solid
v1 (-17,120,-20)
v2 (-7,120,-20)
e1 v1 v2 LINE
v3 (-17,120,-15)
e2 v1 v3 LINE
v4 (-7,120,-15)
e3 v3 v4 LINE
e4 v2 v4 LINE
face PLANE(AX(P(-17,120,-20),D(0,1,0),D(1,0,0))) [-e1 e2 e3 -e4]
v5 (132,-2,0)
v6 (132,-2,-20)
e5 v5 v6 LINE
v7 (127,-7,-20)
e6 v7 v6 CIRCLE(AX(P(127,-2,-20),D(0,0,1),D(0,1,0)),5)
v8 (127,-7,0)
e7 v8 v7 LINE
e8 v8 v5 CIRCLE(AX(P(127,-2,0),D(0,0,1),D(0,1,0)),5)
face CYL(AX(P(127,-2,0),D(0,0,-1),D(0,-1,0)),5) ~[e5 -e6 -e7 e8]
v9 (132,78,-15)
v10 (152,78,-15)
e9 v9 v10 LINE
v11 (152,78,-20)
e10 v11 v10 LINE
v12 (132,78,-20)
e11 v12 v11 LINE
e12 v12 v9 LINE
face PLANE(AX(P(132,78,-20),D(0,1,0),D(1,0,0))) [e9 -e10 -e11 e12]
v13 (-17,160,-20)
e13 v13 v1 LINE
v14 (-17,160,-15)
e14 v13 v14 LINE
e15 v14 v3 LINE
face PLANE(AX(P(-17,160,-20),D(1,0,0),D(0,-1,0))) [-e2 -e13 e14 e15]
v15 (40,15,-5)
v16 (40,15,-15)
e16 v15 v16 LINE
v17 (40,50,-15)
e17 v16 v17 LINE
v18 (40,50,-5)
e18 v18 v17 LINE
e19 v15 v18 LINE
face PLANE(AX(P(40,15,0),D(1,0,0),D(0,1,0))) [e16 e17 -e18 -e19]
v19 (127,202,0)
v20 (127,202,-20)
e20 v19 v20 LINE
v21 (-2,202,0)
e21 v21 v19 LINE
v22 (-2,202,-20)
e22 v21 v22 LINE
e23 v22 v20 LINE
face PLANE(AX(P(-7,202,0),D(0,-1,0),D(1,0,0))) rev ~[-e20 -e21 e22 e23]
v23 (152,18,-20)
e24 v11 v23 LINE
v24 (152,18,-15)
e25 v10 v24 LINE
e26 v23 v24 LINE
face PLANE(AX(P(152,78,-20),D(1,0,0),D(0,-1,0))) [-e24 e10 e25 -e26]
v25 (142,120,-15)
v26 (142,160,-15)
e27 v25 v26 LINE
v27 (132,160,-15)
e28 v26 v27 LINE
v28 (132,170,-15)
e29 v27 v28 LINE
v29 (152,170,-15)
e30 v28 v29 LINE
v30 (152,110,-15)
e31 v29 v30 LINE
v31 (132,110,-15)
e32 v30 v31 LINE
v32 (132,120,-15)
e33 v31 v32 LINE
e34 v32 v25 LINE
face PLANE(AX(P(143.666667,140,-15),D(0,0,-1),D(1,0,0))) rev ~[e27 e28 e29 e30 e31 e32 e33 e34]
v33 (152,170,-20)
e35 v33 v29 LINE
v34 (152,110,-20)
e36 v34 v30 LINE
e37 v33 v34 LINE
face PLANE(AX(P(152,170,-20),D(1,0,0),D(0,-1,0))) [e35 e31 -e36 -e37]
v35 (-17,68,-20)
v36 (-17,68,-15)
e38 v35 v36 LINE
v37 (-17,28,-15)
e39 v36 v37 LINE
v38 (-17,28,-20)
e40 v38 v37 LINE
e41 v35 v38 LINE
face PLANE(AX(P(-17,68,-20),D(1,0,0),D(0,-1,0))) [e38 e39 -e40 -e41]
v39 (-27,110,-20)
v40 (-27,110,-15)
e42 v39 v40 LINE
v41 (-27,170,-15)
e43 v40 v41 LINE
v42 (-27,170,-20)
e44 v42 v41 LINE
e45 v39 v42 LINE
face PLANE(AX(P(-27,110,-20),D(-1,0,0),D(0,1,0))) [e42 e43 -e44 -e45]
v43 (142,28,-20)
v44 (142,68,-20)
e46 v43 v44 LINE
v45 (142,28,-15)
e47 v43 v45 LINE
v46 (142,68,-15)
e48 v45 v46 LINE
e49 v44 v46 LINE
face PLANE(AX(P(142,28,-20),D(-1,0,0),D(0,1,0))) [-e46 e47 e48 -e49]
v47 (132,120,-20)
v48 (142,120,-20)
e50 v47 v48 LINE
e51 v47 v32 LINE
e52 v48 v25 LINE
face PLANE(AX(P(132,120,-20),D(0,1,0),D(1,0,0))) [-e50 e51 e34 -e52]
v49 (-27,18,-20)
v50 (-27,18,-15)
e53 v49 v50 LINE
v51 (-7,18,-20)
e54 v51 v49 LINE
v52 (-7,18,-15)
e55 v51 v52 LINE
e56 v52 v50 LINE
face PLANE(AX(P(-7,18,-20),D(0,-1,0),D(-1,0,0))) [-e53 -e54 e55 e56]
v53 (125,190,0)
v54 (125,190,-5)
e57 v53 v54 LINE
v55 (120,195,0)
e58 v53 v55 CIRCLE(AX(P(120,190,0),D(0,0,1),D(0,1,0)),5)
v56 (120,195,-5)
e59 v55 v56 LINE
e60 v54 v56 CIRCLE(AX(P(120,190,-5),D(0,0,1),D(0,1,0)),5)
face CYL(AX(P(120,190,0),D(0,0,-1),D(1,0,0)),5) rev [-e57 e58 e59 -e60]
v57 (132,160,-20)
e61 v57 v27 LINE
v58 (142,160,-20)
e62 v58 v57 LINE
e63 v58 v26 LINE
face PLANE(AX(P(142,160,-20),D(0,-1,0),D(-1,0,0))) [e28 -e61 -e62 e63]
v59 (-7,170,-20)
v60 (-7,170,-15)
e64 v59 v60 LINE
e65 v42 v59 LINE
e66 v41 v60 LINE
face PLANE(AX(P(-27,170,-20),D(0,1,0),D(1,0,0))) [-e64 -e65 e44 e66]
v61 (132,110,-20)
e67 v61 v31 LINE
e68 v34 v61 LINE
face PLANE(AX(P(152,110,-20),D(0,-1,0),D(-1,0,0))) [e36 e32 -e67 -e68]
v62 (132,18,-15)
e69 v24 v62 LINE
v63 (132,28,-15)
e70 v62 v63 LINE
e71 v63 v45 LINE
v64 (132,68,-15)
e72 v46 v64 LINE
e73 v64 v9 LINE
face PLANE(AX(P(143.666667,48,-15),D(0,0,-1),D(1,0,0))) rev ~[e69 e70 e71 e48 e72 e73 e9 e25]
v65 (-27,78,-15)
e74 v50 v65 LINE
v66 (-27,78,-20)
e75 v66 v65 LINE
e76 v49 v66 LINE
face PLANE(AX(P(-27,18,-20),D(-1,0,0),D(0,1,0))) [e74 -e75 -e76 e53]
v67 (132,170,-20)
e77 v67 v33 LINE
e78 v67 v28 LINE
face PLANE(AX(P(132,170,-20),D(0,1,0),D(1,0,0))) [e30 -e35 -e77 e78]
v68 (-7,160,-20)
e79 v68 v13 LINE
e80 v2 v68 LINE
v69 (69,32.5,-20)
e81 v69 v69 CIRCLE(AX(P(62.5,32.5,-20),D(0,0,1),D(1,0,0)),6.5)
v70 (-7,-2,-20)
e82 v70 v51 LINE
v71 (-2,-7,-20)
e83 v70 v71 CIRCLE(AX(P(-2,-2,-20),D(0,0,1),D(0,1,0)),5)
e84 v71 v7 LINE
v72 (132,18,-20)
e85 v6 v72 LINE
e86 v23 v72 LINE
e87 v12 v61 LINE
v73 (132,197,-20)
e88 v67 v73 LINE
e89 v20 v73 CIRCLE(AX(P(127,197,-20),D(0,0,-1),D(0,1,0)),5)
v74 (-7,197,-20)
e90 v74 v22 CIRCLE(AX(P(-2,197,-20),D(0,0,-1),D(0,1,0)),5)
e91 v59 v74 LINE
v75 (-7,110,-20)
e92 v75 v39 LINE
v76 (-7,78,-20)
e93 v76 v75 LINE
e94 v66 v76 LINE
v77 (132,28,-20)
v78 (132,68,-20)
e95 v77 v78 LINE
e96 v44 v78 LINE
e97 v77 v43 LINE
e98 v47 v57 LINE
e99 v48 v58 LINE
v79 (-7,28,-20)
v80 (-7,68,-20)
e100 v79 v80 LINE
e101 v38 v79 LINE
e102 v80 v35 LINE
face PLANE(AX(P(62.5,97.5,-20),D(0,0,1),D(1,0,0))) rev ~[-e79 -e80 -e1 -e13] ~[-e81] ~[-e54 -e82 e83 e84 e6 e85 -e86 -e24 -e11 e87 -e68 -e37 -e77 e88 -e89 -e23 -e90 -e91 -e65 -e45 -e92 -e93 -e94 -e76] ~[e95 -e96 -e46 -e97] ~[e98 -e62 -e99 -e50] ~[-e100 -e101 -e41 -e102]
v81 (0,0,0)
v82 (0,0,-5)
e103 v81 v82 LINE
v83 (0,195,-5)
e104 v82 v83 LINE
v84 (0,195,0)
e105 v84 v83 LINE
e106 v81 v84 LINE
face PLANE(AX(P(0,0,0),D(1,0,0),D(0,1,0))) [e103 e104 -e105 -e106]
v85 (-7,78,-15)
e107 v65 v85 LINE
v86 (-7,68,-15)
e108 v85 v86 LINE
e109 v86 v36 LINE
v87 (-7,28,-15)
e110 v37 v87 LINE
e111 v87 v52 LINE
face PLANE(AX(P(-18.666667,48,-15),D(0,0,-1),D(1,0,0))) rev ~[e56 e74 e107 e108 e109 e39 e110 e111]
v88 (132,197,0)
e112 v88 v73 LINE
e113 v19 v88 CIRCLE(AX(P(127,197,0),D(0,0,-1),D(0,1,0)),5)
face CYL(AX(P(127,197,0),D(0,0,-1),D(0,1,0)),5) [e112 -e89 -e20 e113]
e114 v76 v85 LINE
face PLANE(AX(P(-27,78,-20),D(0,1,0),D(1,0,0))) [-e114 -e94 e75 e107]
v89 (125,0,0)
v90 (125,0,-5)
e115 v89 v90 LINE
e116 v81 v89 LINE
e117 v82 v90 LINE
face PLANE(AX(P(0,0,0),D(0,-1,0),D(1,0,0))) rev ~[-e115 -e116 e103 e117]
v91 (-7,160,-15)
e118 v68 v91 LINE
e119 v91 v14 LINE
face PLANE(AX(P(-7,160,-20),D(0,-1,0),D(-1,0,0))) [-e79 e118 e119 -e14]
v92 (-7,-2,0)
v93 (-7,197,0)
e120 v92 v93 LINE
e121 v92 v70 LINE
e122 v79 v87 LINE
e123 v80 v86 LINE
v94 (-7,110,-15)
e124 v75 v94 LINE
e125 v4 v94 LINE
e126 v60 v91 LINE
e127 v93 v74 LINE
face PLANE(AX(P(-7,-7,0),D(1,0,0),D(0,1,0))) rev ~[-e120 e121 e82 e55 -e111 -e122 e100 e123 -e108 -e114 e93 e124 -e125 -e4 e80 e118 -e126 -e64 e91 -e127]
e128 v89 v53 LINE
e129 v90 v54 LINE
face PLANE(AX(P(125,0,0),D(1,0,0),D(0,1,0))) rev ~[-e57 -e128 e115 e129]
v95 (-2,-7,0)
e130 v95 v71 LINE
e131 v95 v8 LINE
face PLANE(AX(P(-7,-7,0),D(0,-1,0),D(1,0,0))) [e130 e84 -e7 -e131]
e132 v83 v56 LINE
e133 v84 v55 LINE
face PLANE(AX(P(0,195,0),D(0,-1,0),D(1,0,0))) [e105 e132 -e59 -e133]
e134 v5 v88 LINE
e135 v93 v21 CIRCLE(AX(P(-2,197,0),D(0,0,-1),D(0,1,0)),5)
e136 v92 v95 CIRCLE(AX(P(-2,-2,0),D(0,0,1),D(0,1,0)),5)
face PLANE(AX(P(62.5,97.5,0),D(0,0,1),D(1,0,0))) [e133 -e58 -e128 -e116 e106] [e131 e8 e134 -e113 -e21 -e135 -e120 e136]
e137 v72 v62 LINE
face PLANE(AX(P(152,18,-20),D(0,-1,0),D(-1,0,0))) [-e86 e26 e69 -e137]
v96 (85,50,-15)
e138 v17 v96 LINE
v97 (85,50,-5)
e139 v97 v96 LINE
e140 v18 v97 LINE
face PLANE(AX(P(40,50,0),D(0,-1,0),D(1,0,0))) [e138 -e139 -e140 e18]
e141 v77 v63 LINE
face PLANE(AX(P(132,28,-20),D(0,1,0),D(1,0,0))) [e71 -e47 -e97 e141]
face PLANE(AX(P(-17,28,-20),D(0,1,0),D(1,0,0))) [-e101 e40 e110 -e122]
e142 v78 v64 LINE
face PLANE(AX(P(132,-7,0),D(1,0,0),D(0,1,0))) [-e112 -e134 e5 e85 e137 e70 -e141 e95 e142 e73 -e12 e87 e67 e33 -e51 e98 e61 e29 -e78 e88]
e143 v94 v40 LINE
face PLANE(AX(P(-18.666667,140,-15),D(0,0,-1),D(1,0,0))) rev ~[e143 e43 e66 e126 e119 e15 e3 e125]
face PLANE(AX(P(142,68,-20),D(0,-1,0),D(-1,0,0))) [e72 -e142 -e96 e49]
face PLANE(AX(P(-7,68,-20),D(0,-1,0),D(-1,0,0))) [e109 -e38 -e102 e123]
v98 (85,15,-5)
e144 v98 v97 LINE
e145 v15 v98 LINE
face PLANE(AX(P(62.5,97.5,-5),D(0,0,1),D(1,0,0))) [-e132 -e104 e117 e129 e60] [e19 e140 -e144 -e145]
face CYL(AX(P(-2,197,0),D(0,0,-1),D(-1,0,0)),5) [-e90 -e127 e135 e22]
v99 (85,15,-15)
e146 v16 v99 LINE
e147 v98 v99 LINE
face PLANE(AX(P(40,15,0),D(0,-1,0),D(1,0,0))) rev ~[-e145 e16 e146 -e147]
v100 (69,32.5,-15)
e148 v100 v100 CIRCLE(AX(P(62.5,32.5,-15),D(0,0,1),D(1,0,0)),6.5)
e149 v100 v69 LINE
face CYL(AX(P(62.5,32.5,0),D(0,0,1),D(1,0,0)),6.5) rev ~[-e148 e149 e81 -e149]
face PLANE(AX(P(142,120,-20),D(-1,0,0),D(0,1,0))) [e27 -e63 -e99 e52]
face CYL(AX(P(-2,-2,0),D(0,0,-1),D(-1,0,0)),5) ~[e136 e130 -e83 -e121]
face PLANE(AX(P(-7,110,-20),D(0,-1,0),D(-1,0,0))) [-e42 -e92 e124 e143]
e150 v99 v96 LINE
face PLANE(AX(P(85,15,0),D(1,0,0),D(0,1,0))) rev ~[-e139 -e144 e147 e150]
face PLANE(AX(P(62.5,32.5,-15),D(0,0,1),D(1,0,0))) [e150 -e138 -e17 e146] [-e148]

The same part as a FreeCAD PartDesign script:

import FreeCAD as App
import Part
import Sketcher
Q = App.Units.Quantity


def edges_at(feature, points):
    """Names of the edges that pass closest to the given points."""
    edges = feature.Shape.Edges
    near = lambda p: min(range(len(edges)), key=lambda i: edges[i].distToShape(Part.Vertex(*p))[0])
    return sorted({f"Edge{near(p) + 1}" for p in points})


def add_polygon(sketch, points):
    """Adds a closed chain of lines whose ends are joined by coincident constraints."""
    first, n = sketch.GeometryCount, len(points)
    for a, b in zip(points, points[1:] + points[:1]):
        sketch.addGeometry(Part.LineSegment(App.Vector(*a, 0), App.Vector(*b, 0)), False)
    for i in range(n):
        sketch.addConstraint(Sketcher.Constraint("Coincident", first + i, 2, first + (i + 1) % n, 1))

doc = App.newDocument("Part")
body = doc.addObject("PartDesign::Body", "Body")

# Sketch on XY plane
sketch1 = doc.addObject("Sketcher::SketchObject", "Sketch")
body.addObject(sketch1)
sketch1.AttachmentSupport = (doc.XY_Plane, [""])
sketch1.MapMode = "FlatFace"
add_polygon(sketch1, [(-7, 202), (-7, -7), (132, -7), (132, 202)])  # lines 0-3
sketch1.addConstraint(Sketcher.Constraint("Vertical", 0))
sketch1.addConstraint(Sketcher.Constraint("Horizontal", 1))
sketch1.addConstraint(Sketcher.Constraint("Vertical", 2))
sketch1.addConstraint(Sketcher.Constraint("Horizontal", 3))
sketch1.addConstraint(Sketcher.Constraint("DistanceX", 1, 1, 1, 2, Q("139 mm")))
sketch1.addConstraint(Sketcher.Constraint("DistanceY", 0, 2, 0, 1, Q("209 mm")))
sketch1.addConstraint(Sketcher.Constraint("DistanceX", 0, 2, -1, 1, Q("7 mm")))
sketch1.addConstraint(Sketcher.Constraint("DistanceY", 0, 2, -1, 1, Q("7 mm")))
pad1 = doc.addObject("PartDesign::Pad", "Pad")
body.addObject(pad1)
pad1.Profile = sketch1
pad1.Length = 20
pad1.Reversed = True

# Sketch on XY plane
sketch2 = doc.addObject("Sketcher::SketchObject", "Sketch001")
body.addObject(sketch2)
sketch2.AttachmentSupport = (doc.XY_Plane, [""])
sketch2.MapMode = "FlatFace"
add_polygon(sketch2, [(0, 195), (0, 0), (125, 0), (125, 195)])  # lines 0-3
sketch2.addConstraint(Sketcher.Constraint("Vertical", 0))
sketch2.addConstraint(Sketcher.Constraint("Horizontal", 1))
sketch2.addConstraint(Sketcher.Constraint("Vertical", 2))
sketch2.addConstraint(Sketcher.Constraint("Horizontal", 3))
sketch2.addConstraint(Sketcher.Constraint("Coincident", 0, 2, -1, 1))
sketch2.addConstraint(Sketcher.Constraint("DistanceX", 1, 1, 1, 2, Q("125 mm")))
sketch2.addConstraint(Sketcher.Constraint("DistanceY", 0, 2, 0, 1, Q("195 mm")))
pocket1 = doc.addObject("PartDesign::Pocket", "Pocket")
body.addObject(pocket1)
pocket1.Profile = sketch2
pocket1.Length = 5

# Sketch on XY plane
sketch3 = doc.addObject("Sketcher::SketchObject", "Sketch002")
body.addObject(sketch3)
sketch3.AttachmentSupport = (doc.XY_Plane, [""])
sketch3.MapMode = "FlatFace"
add_polygon(sketch3, [(40, 50), (40, 15), (85, 15), (85, 50)])  # lines 0-3
sketch3.addConstraint(Sketcher.Constraint("Vertical", 0))
sketch3.addConstraint(Sketcher.Constraint("Horizontal", 1))
sketch3.addConstraint(Sketcher.Constraint("Vertical", 2))
sketch3.addConstraint(Sketcher.Constraint("Horizontal", 3))
sketch3.addConstraint(Sketcher.Constraint("DistanceX", 1, 1, 1, 2, Q("45 mm")))
sketch3.addConstraint(Sketcher.Constraint("DistanceY", 0, 2, 0, 1, Q("35 mm")))
sketch3.addConstraint(Sketcher.Constraint("DistanceX", -1, 1, 0, 2, Q("40 mm")))
sketch3.addConstraint(Sketcher.Constraint("DistanceY", -1, 1, 0, 2, Q("15 mm")))
pocket2 = doc.addObject("PartDesign::Pocket", "Pocket001")
body.addObject(pocket2)
pocket2.Profile = sketch3
pocket2.Length = 15

# Sketch on XY plane
sketch4 = doc.addObject("Sketcher::SketchObject", "Sketch003")
body.addObject(sketch4)
sketch4.AttachmentSupport = (doc.XY_Plane, [""])
sketch4.MapMode = "FlatFace"
sketch4.addGeometry(Part.Circle(App.Vector(62, 32, 0), App.Vector(0, 0, 1), 6), False)
sketch4.addConstraint(Sketcher.Constraint("Diameter", 0, Q("13 mm")))
sketch4.addConstraint(Sketcher.Constraint("DistanceX", -1, 1, 0, 3, Q("62.5 mm")))
sketch4.addConstraint(Sketcher.Constraint("DistanceY", -1, 1, 0, 3, Q("32.5 mm")))
pocket3 = doc.addObject("PartDesign::Pocket", "Pocket002")
body.addObject(pocket3)
pocket3.Profile = sketch4
pocket3.Length = 25
doc.recompute()

fillet = doc.addObject("PartDesign::Fillet", "Fillet")
body.addObject(fillet)
fillet.Base = (pocket3, edges_at(pocket3, [
    (-7, -7, -10),
    (125, 195, -2.5),
    (-7, 202, -10),
    (132, -7, -10),
    (132, 202, -10),
]))
fillet.Radius = 5

# Sketch on XY plane
sketch5 = doc.addObject("Sketcher::SketchObject", "Sketch004")
body.addObject(sketch5)
sketch5.AttachmentSupport = (doc.XY_Plane, [""])
sketch5.MapMode = "FlatFace"
sketch5.AttachmentOffset = App.Placement(App.Vector(0, 0, -20), App.Rotation())
add_polygon(sketch5, [(-27, 170), (-7, 170), (-7, 160), (-17, 160), (-17, 120), (-7, 120), (-7, 110), (-27, 110)])  # lines 0-7
add_polygon(sketch5, [(-27, 78), (-7, 78), (-7, 68), (-17, 68), (-17, 28), (-7, 28), (-7, 18), (-27, 18)])  # lines 8-15
add_polygon(sketch5, [(132, 68), (132, 78), (152, 78), (152, 18), (132, 18), (132, 28), (142, 28), (142, 68)])  # lines 16-23
add_polygon(sketch5, [(132, 170), (152, 170), (152, 110), (132, 110), (132, 120), (142, 120), (142, 160), (132, 160)])  # lines 24-31
sketch5.addConstraint(Sketcher.Constraint("Horizontal", 0))
sketch5.addConstraint(Sketcher.Constraint("Vertical", 1))
sketch5.addConstraint(Sketcher.Constraint("Horizontal", 2))
sketch5.addConstraint(Sketcher.Constraint("Vertical", 3))
sketch5.addConstraint(Sketcher.Constraint("Horizontal", 4))
sketch5.addConstraint(Sketcher.Constraint("Vertical", 5))
sketch5.addConstraint(Sketcher.Constraint("Horizontal", 6))
sketch5.addConstraint(Sketcher.Constraint("Vertical", 7))
sketch5.addConstraint(Sketcher.Constraint("Horizontal", 8))
sketch5.addConstraint(Sketcher.Constraint("Vertical", 9))
sketch5.addConstraint(Sketcher.Constraint("Horizontal", 10))
sketch5.addConstraint(Sketcher.Constraint("Vertical", 11))
sketch5.addConstraint(Sketcher.Constraint("Horizontal", 12))
sketch5.addConstraint(Sketcher.Constraint("Vertical", 13))
sketch5.addConstraint(Sketcher.Constraint("Horizontal", 14))
sketch5.addConstraint(Sketcher.Constraint("Vertical", 15))
sketch5.addConstraint(Sketcher.Constraint("Vertical", 16))
sketch5.addConstraint(Sketcher.Constraint("Horizontal", 17))
sketch5.addConstraint(Sketcher.Constraint("Vertical", 18))
sketch5.addConstraint(Sketcher.Constraint("Horizontal", 19))
sketch5.addConstraint(Sketcher.Constraint("Vertical", 20))
sketch5.addConstraint(Sketcher.Constraint("Horizontal", 21))
sketch5.addConstraint(Sketcher.Constraint("Vertical", 22))
sketch5.addConstraint(Sketcher.Constraint("Horizontal", 23))
sketch5.addConstraint(Sketcher.Constraint("Horizontal", 24))
sketch5.addConstraint(Sketcher.Constraint("Vertical", 25))
sketch5.addConstraint(Sketcher.Constraint("Horizontal", 26))
sketch5.addConstraint(Sketcher.Constraint("Vertical", 27))
sketch5.addConstraint(Sketcher.Constraint("Horizontal", 28))
sketch5.addConstraint(Sketcher.Constraint("Vertical", 29))
sketch5.addConstraint(Sketcher.Constraint("Horizontal", 30))
sketch5.addConstraint(Sketcher.Constraint("Vertical", 31))
sketch5.addConstraint(Sketcher.Constraint("Horizontal", 15, 2, 16, 2))
sketch5.addConstraint(Sketcher.Constraint("Horizontal", 14, 2, 18, 2))
sketch5.addConstraint(Sketcher.Constraint("Horizontal", 12, 2, 20, 2))
sketch5.addConstraint(Sketcher.Constraint("Horizontal", 10, 2, 22, 2))
sketch5.addConstraint(Sketcher.Constraint("Horizontal", 7, 2, 24, 2))
sketch5.addConstraint(Sketcher.Constraint("Horizontal", 6, 2, 25, 2))
sketch5.addConstraint(Sketcher.Constraint("Horizontal", 4, 2, 27, 2))
sketch5.addConstraint(Sketcher.Constraint("Horizontal", 2, 2, 29, 2))
sketch5.addConstraint(Sketcher.Constraint("Vertical", 1, 2, 4, 2))
sketch5.addConstraint(Sketcher.Constraint("Vertical", 5, 2, 8, 2))
sketch5.addConstraint(Sketcher.Constraint("Vertical", 3, 2, 10, 2))
sketch5.addConstraint(Sketcher.Constraint("Vertical", 9, 2, 12, 2))
sketch5.addConstraint(Sketcher.Constraint("Vertical", 7, 2, 14, 2))
sketch5.addConstraint(Sketcher.Constraint("Vertical", 16, 2, 19, 2))
sketch5.addConstraint(Sketcher.Constraint("Vertical", 18, 2, 24, 2))
sketch5.addConstraint(Sketcher.Constraint("Vertical", 23, 2, 26, 2))
sketch5.addConstraint(Sketcher.Constraint("Vertical", 22, 2, 28, 2))
sketch5.addConstraint(Sketcher.Constraint("Vertical", 27, 2, 30, 2))
sketch5.addConstraint(Sketcher.Constraint("Equal", 14, 17))
sketch5.addConstraint(Sketcher.Constraint("Equal", 12, 21))
sketch5.addConstraint(Sketcher.Constraint("Equal", 30, 1))
sketch5.addConstraint(Sketcher.Constraint("Equal", 1, 5))
sketch5.addConstraint(Sketcher.Constraint("Equal", 5, 9))
sketch5.addConstraint(Sketcher.Constraint("Equal", 3, 11))
sketch5.addConstraint(Sketcher.Constraint("Equal", 9, 13))
sketch5.addConstraint(Sketcher.Constraint("DistanceX", 0, 1, 0, 2, Q("20 mm")))
sketch5.addConstraint(Sketcher.Constraint("DistanceX", 2, 2, 2, 1, Q("10 mm")))
sketch5.addConstraint(Sketcher.Constraint("DistanceY", 3, 2, 3, 1, Q("40 mm")))
sketch5.addConstraint(Sketcher.Constraint("DistanceX", 0, 2, -1, 1, Q("7 mm")))
sketch5.addConstraint(Sketcher.Constraint("DistanceY", -1, 1, 0, 2, Q("170 mm")))
sketch5.addConstraint(Sketcher.Constraint("DistanceY", -1, 1, 8, 2, Q("78 mm")))
sketch5.addConstraint(Sketcher.Constraint("DistanceX", -1, 1, 16, 2, Q("132 mm")))
pad2 = doc.addObject("PartDesign::Pad", "Pad001")
body.addObject(pad2)
pad2.Profile = sketch5
pad2.Length = 5

doc.recompute()
